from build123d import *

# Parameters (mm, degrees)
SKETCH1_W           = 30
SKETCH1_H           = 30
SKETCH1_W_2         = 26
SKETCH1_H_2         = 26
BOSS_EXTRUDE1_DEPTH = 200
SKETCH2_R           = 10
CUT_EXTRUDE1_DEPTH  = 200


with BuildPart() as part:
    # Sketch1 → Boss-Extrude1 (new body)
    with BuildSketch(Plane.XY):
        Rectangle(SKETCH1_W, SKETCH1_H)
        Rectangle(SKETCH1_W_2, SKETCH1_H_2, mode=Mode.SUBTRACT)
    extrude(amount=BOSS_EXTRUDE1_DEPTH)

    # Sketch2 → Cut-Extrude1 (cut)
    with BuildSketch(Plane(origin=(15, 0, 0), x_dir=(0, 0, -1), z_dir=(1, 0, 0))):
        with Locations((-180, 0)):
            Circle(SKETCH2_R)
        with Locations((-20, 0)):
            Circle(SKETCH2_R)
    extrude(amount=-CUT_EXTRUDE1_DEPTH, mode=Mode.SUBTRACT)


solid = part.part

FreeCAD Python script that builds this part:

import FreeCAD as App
import Part
import Sketcher

V = App.Vector
Q = App.Units.Quantity

doc = App.newDocument("Part")
body = doc.addObject("PartDesign::Body", "Body")

# Sketch on XY plane
sketch1 = doc.addObject("Sketcher::SketchObject", "Sketch")
body.addObject(sketch1)
sketch1.AttachmentSupport = (doc.XY_Plane, [""])
sketch1.MapMode = "FlatFace"
sketch1.addGeometry([
    Part.LineSegment(V(-15, 15, 0), V(-15, -15, 0)),  # 0
    Part.LineSegment(V(-15, -15, 0), V(15, -15, 0)),  # 1
    Part.LineSegment(V(15, -15, 0), V(15, 15, 0)),  # 2
    Part.LineSegment(V(15, 15, 0), V(-15, 15, 0)),  # 3
    Part.LineSegment(V(13, -13, 0), V(-13, -13, 0)),  # 4
    Part.LineSegment(V(-13, -13, 0), V(-13, 13, 0)),  # 5
    Part.LineSegment(V(-13, 13, 0), V(13, 13, 0)),  # 6
    Part.LineSegment(V(13, 13, 0), V(13, -13, 0)),  # 7
], False)
sketch1.addConstraint([
    Sketcher.Constraint("Coincident", 0, 2, 1, 1),
    Sketcher.Constraint("Coincident", 1, 2, 2, 1),
    Sketcher.Constraint("Coincident", 2, 2, 3, 1),
    Sketcher.Constraint("Coincident", 3, 2, 0, 1),
    Sketcher.Constraint("Coincident", 4, 2, 5, 1),
    Sketcher.Constraint("Coincident", 5, 2, 6, 1),
    Sketcher.Constraint("Coincident", 6, 2, 7, 1),
    Sketcher.Constraint("Coincident", 7, 2, 4, 1),
    Sketcher.Constraint("Vertical", 0),
    Sketcher.Constraint("Horizontal", 1),
    Sketcher.Constraint("Vertical", 2),
    Sketcher.Constraint("Horizontal", 3),
    Sketcher.Constraint("Horizontal", 4),
    Sketcher.Constraint("Vertical", 5),
    Sketcher.Constraint("Horizontal", 6),
    Sketcher.Constraint("Vertical", 7),
    Sketcher.Constraint("Symmetric", 0, 2, 2, 2, -1, 1),
    Sketcher.Constraint("Symmetric", 4, 2, 6, 2, -1, 1),
    Sketcher.Constraint("Equal", 3, 0),
    Sketcher.Constraint("Equal", 6, 5),
    Sketcher.Constraint("DistanceX", 1, 1, 1, 2, Q("30 mm")),
    Sketcher.Constraint("DistanceX", 4, 2, 4, 1, Q("26 mm")),
])
pad1 = doc.addObject("PartDesign::Pad", "Pad")
body.addObject(pad1)
pad1.Profile = sketch1
pad1.Length = 200

# Sketch on YZ plane
sketch2 = doc.addObject("Sketcher::SketchObject", "Sketch001")
body.addObject(sketch2)
sketch2.AttachmentSupport = (doc.YZ_Plane, [""])
sketch2.MapMode = "FlatFace"
sketch2.AttachmentOffset = App.Placement(V(0, 0, 15), App.Rotation())
sketch2.addGeometry([
    Part.Circle(V(0, 180, 0), V(0, 0, 1), 10),
    Part.Circle(V(0, 20, 0), V(0, 0, 1), 10),
], False)
sketch2.addConstraint([
    Sketcher.Constraint("Equal", 0, 1),
    Sketcher.Constraint("PointOnObject", 0, 3, -2),
    Sketcher.Constraint("PointOnObject", 1, 3, -2),
    Sketcher.Constraint("Diameter", 0, Q("20 mm")),
    Sketcher.Constraint("DistanceY", -1, 1, 0, 3, Q("180 mm")),
    Sketcher.Constraint("DistanceY", -1, 1, 1, 3, Q("20 mm")),
])
pocket1 = doc.addObject("PartDesign::Pocket", "Pocket")
body.addObject(pocket1)
pocket1.Profile = sketch2
pocket1.Length = 200

doc.recompute()
